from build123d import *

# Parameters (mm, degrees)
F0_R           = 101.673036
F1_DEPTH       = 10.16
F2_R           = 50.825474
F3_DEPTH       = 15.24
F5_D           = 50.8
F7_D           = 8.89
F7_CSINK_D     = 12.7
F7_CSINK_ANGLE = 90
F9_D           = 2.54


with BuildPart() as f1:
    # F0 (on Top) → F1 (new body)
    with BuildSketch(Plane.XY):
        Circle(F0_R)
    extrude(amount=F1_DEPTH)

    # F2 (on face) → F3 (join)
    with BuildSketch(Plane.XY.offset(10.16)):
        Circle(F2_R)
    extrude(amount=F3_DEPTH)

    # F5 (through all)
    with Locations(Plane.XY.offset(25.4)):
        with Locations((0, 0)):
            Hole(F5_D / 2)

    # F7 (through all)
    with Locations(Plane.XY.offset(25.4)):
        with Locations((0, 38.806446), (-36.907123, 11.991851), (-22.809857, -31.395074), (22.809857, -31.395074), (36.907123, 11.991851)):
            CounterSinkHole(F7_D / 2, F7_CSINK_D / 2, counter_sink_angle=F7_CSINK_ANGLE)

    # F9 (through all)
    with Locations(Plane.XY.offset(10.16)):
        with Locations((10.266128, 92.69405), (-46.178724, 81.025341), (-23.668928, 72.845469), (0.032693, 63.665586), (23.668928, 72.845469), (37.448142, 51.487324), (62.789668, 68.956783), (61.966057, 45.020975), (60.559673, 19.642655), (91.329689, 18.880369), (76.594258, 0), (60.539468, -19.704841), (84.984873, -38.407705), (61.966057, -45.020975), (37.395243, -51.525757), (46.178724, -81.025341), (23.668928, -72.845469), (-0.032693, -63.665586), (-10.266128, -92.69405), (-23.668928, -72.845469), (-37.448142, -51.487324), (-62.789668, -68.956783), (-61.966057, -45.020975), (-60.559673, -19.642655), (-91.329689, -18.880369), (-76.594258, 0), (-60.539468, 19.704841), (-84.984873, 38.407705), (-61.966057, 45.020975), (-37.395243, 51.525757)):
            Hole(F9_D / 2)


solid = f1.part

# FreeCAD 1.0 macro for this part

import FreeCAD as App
import Part
import Sketcher

V = App.Vector
Q = App.Units.Quantity

doc = App.newDocument("Part")
body = doc.addObject("PartDesign::Body", "Body")

# Sketch on XY plane
sketch1 = body.newObject("Sketcher::SketchObject", "Sketch")
sketch1.AttachmentSupport = (doc.getObject("XY_Plane"), [""])
sketch1.MapMode = "FlatFace"
sketch1.addGeometry(Part.Circle(V(0, 0, 0), V(0, 0, 1), 102), False)
sketch1.addConstraint(Sketcher.Constraint("Coincident", 0, 3, -1, 1))
sketch1.addConstraint(Sketcher.Constraint("Diameter", 0, Q("203.346072 mm")))
pad1 = body.newObject("PartDesign::Pad", "Pad")
pad1.Profile = sketch1
pad1.Length = Q("0.4 in")

# Sketch on XY plane
sketch2 = body.newObject("Sketcher::SketchObject", "Sketch001")
sketch2.AttachmentSupport = (doc.getObject("XY_Plane"), [""])
sketch2.MapMode = "FlatFace"
sketch2.AttachmentOffset = App.Placement(V(0, 0, 0.4 * 25.4), App.Rotation())
sketch2.addGeometry(Part.Circle(V(0, 0, 0), V(0, 0, 1), 51), False)
sketch2.addConstraint(Sketcher.Constraint("Coincident", 0, 3, -1, 1))
sketch2.addConstraint(Sketcher.Constraint("Diameter", 0, Q("101.650948 mm")))
pad2 = body.newObject("PartDesign::Pad", "Pad001")
pad2.Profile = sketch2
pad2.Length = Q("0.6 in")

# Sketch on XY plane
sketch3 = body.newObject("Sketcher::SketchObject", "Sketch002")
sketch3.AttachmentSupport = (doc.getObject("XY_Plane"), [""])
sketch3.MapMode = "FlatFace"
sketch3.AttachmentOffset = App.Placement(V(0, 0, 1 * 25.4), App.Rotation())
sketch3.addGeometry(Part.Circle(V(0, 0, 0), V(0, 0, 1), 25), False)
sketch3.addConstraint(Sketcher.Constraint("Coincident", 0, 3, -1, 1))
sketch3.addConstraint(Sketcher.Constraint("Diameter", 0, Q("2 in")))
doc.recompute()
hole = body.newObject("PartDesign::Hole", "Hole")
hole.Profile = sketch3
hole.ThreadType = "None"
hole.Diameter = Q("2 in")
hole.DepthType = "ThroughAll"

# Sketch on XY plane
sketch4 = body.newObject("Sketcher::SketchObject", "Sketch003")
sketch4.AttachmentSupport = (doc.getObject("XY_Plane"), [""])
sketch4.MapMode = "FlatFace"
sketch4.AttachmentOffset = App.Placement(V(0, 0, 1 * 25.4), App.Rotation())
sketch4.addGeometry(Part.Circle(V(0, 38.8, 0), V(0, 0, 1), 4.4), False)
sketch4.addGeometry(Part.Circle(V(-36.9, 12, 0), V(0, 0, 1), 4.4), False)
sketch4.addGeometry(Part.Circle(V(-22.8, -31.4, 0), V(0, 0, 1), 4.4), False)
sketch4.addGeometry(Part.Circle(V(22.8, -31.4, 0), V(0, 0, 1), 4.4), False)
sketch4.addGeometry(Part.Circle(V(36.9, 12, 0), V(0, 0, 1), 4.4), False)
sketch4.addConstraint(Sketcher.Constraint("Equal", 0, 1))
sketch4.addConstraint(Sketcher.Constraint("Equal", 1, 2))
sketch4.addConstraint(Sketcher.Constraint("Equal", 2, 3))
sketch4.addConstraint(Sketcher.Constraint("Equal", 3, 4))
sketch4.addConstraint(Sketcher.Constraint("Symmetric", 2, 3, 3, 3, -2))
sketch4.addConstraint(Sketcher.Constraint("Symmetric", 1, 3, 4, 3, -2))
sketch4.addConstraint(Sketcher.Constraint("PointOnObject", 0, 3, -2))
sketch4.addConstraint(Sketcher.Constraint("Diameter", 0, Q("0.35 in")))
sketch4.addConstraint(Sketcher.Constraint("DistanceY", -1, 1, 1, 3, Q("11.991851 mm")))
sketch4.addConstraint(Sketcher.Constraint("DistanceY", 2, 3, 0, 3, Q("70.20152 mm")))
sketch4.addConstraint(Sketcher.Constraint("DistanceX", 1, 3, 3, 3, Q("59.71698 mm")))
sketch4.addConstraint(Sketcher.Constraint("DistanceY", -1, 1, 0, 3, Q("38.806446 mm")))
sketch4.addConstraint(Sketcher.Constraint("DistanceX", 1, 3, -1, 1, Q("36.907123 mm")))
doc.recompute()
hole2 = body.newObject("PartDesign::Hole", "Hole001")
hole2.Profile = sketch4
hole2.ThreadType = "None"
hole2.Diameter = Q("0.35 in")
hole2.DepthType = "ThroughAll"
hole2.HoleCutType = "Countersink"
hole2.HoleCutDiameter = Q("0.5 in")
hole2.HoleCutCountersinkAngle = 90

# Sketch on XY plane
sketch5 = body.newObject("Sketcher::SketchObject", "Sketch004")
sketch5.AttachmentSupport = (doc.getObject("XY_Plane"), [""])
sketch5.MapMode = "FlatFace"
sketch5.AttachmentOffset = App.Placement(V(0, 0, 0.4 * 25.4), App.Rotation())
sketch5.addGeometry(Part.Circle(V(10.3, 92.7, 0), V(0, 0, 1), 1.3), False)
sketch5.addGeometry(Part.Circle(V(-46.2, 81, 0), V(0, 0, 1), 1.3), False)
sketch5.addGeometry(Part.Circle(V(-23.7, 72.8, 0), V(0, 0, 1), 1.3), False)
sketch5.addGeometry(Part.Circle(V(0, 63.7, 0), V(0, 0, 1), 1.3), False)
sketch5.addGeometry(Part.Circle(V(23.7, 72.8, 0), V(0, 0, 1), 1.3), False)
sketch5.addGeometry(Part.Circle(V(37.4, 51.5, 0), V(0, 0, 1), 1.3), False)
sketch5.addGeometry(Part.Circle(V(62.8, 69, 0), V(0, 0, 1), 1.3), False)
sketch5.addGeometry(Part.Circle(V(62, 45, 0), V(0, 0, 1), 1.3), False)
sketch5.addGeometry(Part.Circle(V(60.6, 19.6, 0), V(0, 0, 1), 1.3), False)
sketch5.addGeometry(Part.Circle(V(91.3, 18.9, 0), V(0, 0, 1), 1.3), False)
sketch5.addGeometry(Part.Circle(V(76.6, 0, 0), V(0, 0, 1), 1.3), False)
sketch5.addGeometry(Part.Circle(V(60.5, -19.7, 0), V(0, 0, 1), 1.3), False)
sketch5.addGeometry(Part.Circle(V(85, -38.4, 0), V(0, 0, 1), 1.3), False)
sketch5.addGeometry(Part.Circle(V(62, -45, 0), V(0, 0, 1), 1.3), False)
sketch5.addGeometry(Part.Circle(V(37.4, -51.5, 0), V(0, 0, 1), 1.3), False)
sketch5.addGeometry(Part.Circle(V(46.2, -81, 0), V(0, 0, 1), 1.3), False)
sketch5.addGeometry(Part.Circle(V(23.7, -72.8, 0), V(0, 0, 1), 1.3), False)
sketch5.addGeometry(Part.Circle(V(0, -63.7, 0), V(0, 0, 1), 1.3), False)
sketch5.addGeometry(Part.Circle(V(-10.3, -92.7, 0), V(0, 0, 1), 1.3), False)
sketch5.addGeometry(Part.Circle(V(-23.7, -72.8, 0), V(0, 0, 1), 1.3), False)
sketch5.addGeometry(Part.Circle(V(-37.4, -51.5, 0), V(0, 0, 1), 1.3), False)
sketch5.addGeometry(Part.Circle(V(-62.8, -69, 0), V(0, 0, 1), 1.3), False)
sketch5.addGeometry(Part.Circle(V(-62, -45, 0), V(0, 0, 1), 1.3), False)
sketch5.addGeometry(Part.Circle(V(-60.6, -19.6, 0), V(0, 0, 1), 1.3), False)
sketch5.addGeometry(Part.Circle(V(-91.3, -18.9, 0), V(0, 0, 1), 1.3), False)
sketch5.addGeometry(Part.Circle(V(-76.6, 0, 0), V(0, 0, 1), 1.3), False)
sketch5.addGeometry(Part.Circle(V(-60.5, 19.7, 0), V(0, 0, 1), 1.3), False)
sketch5.addGeometry(Part.Circle(V(-85, 38.4, 0), V(0, 0, 1), 1.3), False)
sketch5.addGeometry(Part.Circle(V(-62, 45, 0), V(0, 0, 1), 1.3), False)
sketch5.addGeometry(Part.Circle(V(-37.4, 51.5, 0), V(0, 0, 1), 1.3), False)
sketch5.addConstraint(Sketcher.Constraint("Equal", 0, 1))
sketch5.addConstraint(Sketcher.Constraint("Equal", 1, 2))
sketch5.addConstraint(Sketcher.Constraint("Equal", 2, 3))
sketch5.addConstraint(Sketcher.Constraint("Equal", 3, 4))
sketch5.addConstraint(Sketcher.Constraint("Equal", 4, 5))
sketch5.addConstraint(Sketcher.Constraint("Equal", 5, 6))
sketch5.addConstraint(Sketcher.Constraint("Equal", 6, 7))
sketch5.addConstraint(Sketcher.Constraint("Equal", 7, 8))
sketch5.addConstraint(Sketcher.Constraint("Equal", 8, 9))
sketch5.addConstraint(Sketcher.Constraint("Equal", 9, 10))
sketch5.addConstraint(Sketcher.Constraint("Equal", 10, 11))
sketch5.addConstraint(Sketcher.Constraint("Equal", 11, 12))
sketch5.addConstraint(Sketcher.Constraint("Equal", 12, 13))
sketch5.addConstraint(Sketcher.Constraint("Equal", 13, 14))
sketch5.addConstraint(Sketcher.Constraint("Equal", 14, 15))
sketch5.addConstraint(Sketcher.Constraint("Equal", 15, 16))
sketch5.addConstraint(Sketcher.Constraint("Equal", 16, 17))
sketch5.addConstraint(Sketcher.Constraint("Equal", 17, 18))
sketch5.addConstraint(Sketcher.Constraint("Equal", 18, 19))
sketch5.addConstraint(Sketcher.Constraint("Equal", 19, 20))
sketch5.addConstraint(Sketcher.Constraint("Equal", 20, 21))
sketch5.addConstraint(Sketcher.Constraint("Equal", 21, 22))
sketch5.addConstraint(Sketcher.Constraint("Equal", 22, 23))
sketch5.addConstraint(Sketcher.Constraint("Equal", 23, 24))
sketch5.addConstraint(Sketcher.Constraint("Equal", 24, 25))
sketch5.addConstraint(Sketcher.Constraint("Equal", 25, 26))
sketch5.addConstraint(Sketcher.Constraint("Equal", 26, 27))
sketch5.addConstraint(Sketcher.Constraint("Equal", 27, 28))
sketch5.addConstraint(Sketcher.Constraint("Equal", 28, 29))
sketch5.addConstraint(Sketcher.Constraint("Symmetric", 1, 3, 15, 3, -1, 1))
sketch5.addConstraint(Sketcher.Constraint("Symmetric", 2, 3, 16, 3, -1, 1))
sketch5.addConstraint(Sketcher.Constraint("Symmetric", 3, 3, 17, 3, -1, 1))
sketch5.addConstraint(Sketcher.Constraint("Symmetric", 0, 3, 18, 3, -1, 1))
sketch5.addConstraint(Sketcher.Constraint("Symmetric", 4, 3, 19, 3, -1, 1))
sketch5.addConstraint(Sketcher.Constraint("Symmetric", 5, 3, 20, 3, -1, 1))
sketch5.addConstraint(Sketcher.Constraint("Symmetric", 6, 3, 21, 3, -1, 1))
sketch5.addConstraint(Sketcher.Constraint("Symmetric", 7, 3, 22, 3, -1, 1))
sketch5.addConstraint(Sketcher.Constraint("Symmetric", 8, 3, 23, 3, -1, 1))
sketch5.addConstraint(Sketcher.Constraint("Symmetric", 9, 3, 24, 3, -1, 1))
sketch5.addConstraint(Sketcher.Constraint("Symmetric", 10, 3, 25, 3, -1, 1))
sketch5.addConstraint(Sketcher.Constraint("Symmetric", 11, 3, 26, 3, -1, 1))
sketch5.addConstraint(Sketcher.Constraint("Symmetric", 12, 3, 27, 3, -1, 1))
sketch5.addConstraint(Sketcher.Constraint("Symmetric", 13, 3, 28, 3, -1, 1))
sketch5.addConstraint(Sketcher.Constraint("Symmetric", 14, 3, 29, 3, -1, 1))
sketch5.addConstraint(Sketcher.Constraint("Symmetric", 2, 3, 4, 3, -2))
sketch5.addConstraint(Sketcher.Constraint("Symmetric", 13, 3, 22, 3, -2))
sketch5.addConstraint(Sketcher.Constraint("PointOnObject", 10, 3, -1))
sketch5.addConstraint(Sketcher.Constraint("Diameter", 0, Q("0.1 in")))
sketch5.addConstraint(Sketcher.Constraint("DistanceX", 0, 3, 4, 3, Q("13.4028 mm")))
sketch5.addConstraint(Sketcher.Constraint("DistanceY", 9, 3, 4, 3, Q("53.9651 mm")))
sketch5.addConstraint(Sketcher.Constraint("DistanceX", 7, 3, 10, 3, Q("14.628201 mm")))
sketch5.addConstraint(Sketcher.Constraint("DistanceX", 8, 3, 12, 3, Q("24.4252 mm")))
sketch5.addConstraint(Sketcher.Constraint("DistanceY", 15, 3, 11, 3, Q("61.3205 mm")))
sketch5.addConstraint(Sketcher.Constraint("DistanceY", -1, 1, 0, 3, Q("92.69405 mm")))
sketch5.addConstraint(Sketcher.Constraint("DistanceY", -1, 1, 1, 3, Q("81.025341 mm")))
sketch5.addConstraint(Sketcher.Constraint("DistanceX", 2, 3, -1, 1, Q("23.668928 mm")))
sketch5.addConstraint(Sketcher.Constraint("DistanceY", -1, 1, 2, 3, Q("72.845469 mm")))
sketch5.addConstraint(Sketcher.Constraint("DistanceX", -1, 1, 5, 3, Q("37.448142 mm")))
sketch5.addConstraint(Sketcher.Constraint("DistanceX", -1, 1, 9, 3, Q("91.329689 mm")))
sketch5.addConstraint(Sketcher.Constraint("DistanceX", 2, 3, 3, 3, Q("23.701621 mm")))
sketch5.addConstraint(Sketcher.Constraint("DistanceY", 5, 3, 3, 3, Q("12.178262 mm")))
sketch5.addConstraint(Sketcher.Constraint("DistanceY", 5, 3, 6, 3, Q("17.469459 mm")))
sketch5.addConstraint(Sketcher.Constraint("DistanceX", 4, 3, 6, 3, Q("39.12074 mm")))
sketch5.addConstraint(Sketcher.Constraint("DistanceX", 7, 3, 6, 3, Q("0.823611 mm")))
sketch5.addConstraint(Sketcher.Constraint("DistanceY", 7, 3, 6, 3, Q("23.935808 mm")))
sketch5.addConstraint(Sketcher.Constraint("DistanceY", 8, 3, 7, 3, Q("25.37832 mm")))
sketch5.addConstraint(Sketcher.Constraint("DistanceX", 5, 3, 8, 3, Q("23.111531 mm")))
sketch5.addConstraint(Sketcher.Constraint("DistanceX", 11, 3, 10, 3, Q("16.05479 mm")))
sketch5.addConstraint(Sketcher.Constraint("DistanceY", 12, 3, 8, 3, Q("58.05036 mm")))
sketch5.addConstraint(Sketcher.Constraint("DistanceY", 13, 3, 12, 3, Q("6.61327 mm")))
sketch5.addConstraint(Sketcher.Constraint("DistanceY", 14, 3, 13, 3, Q("6.504782 mm")))
sketch5.addConstraint(Sketcher.Constraint("DistanceX", 14, 3, 12, 3, Q("47.58963 mm")))
sketch5.addConstraint(Sketcher.Constraint("DistanceX", 14, 3, 15, 3, Q("8.783481 mm")))
doc.recompute()
hole3 = body.newObject("PartDesign::Hole", "Hole002")
hole3.Profile = sketch5
hole3.ThreadType = "None"
hole3.Diameter = Q("0.1 in")
hole3.DepthType = "ThroughAll"

doc.recompute()
